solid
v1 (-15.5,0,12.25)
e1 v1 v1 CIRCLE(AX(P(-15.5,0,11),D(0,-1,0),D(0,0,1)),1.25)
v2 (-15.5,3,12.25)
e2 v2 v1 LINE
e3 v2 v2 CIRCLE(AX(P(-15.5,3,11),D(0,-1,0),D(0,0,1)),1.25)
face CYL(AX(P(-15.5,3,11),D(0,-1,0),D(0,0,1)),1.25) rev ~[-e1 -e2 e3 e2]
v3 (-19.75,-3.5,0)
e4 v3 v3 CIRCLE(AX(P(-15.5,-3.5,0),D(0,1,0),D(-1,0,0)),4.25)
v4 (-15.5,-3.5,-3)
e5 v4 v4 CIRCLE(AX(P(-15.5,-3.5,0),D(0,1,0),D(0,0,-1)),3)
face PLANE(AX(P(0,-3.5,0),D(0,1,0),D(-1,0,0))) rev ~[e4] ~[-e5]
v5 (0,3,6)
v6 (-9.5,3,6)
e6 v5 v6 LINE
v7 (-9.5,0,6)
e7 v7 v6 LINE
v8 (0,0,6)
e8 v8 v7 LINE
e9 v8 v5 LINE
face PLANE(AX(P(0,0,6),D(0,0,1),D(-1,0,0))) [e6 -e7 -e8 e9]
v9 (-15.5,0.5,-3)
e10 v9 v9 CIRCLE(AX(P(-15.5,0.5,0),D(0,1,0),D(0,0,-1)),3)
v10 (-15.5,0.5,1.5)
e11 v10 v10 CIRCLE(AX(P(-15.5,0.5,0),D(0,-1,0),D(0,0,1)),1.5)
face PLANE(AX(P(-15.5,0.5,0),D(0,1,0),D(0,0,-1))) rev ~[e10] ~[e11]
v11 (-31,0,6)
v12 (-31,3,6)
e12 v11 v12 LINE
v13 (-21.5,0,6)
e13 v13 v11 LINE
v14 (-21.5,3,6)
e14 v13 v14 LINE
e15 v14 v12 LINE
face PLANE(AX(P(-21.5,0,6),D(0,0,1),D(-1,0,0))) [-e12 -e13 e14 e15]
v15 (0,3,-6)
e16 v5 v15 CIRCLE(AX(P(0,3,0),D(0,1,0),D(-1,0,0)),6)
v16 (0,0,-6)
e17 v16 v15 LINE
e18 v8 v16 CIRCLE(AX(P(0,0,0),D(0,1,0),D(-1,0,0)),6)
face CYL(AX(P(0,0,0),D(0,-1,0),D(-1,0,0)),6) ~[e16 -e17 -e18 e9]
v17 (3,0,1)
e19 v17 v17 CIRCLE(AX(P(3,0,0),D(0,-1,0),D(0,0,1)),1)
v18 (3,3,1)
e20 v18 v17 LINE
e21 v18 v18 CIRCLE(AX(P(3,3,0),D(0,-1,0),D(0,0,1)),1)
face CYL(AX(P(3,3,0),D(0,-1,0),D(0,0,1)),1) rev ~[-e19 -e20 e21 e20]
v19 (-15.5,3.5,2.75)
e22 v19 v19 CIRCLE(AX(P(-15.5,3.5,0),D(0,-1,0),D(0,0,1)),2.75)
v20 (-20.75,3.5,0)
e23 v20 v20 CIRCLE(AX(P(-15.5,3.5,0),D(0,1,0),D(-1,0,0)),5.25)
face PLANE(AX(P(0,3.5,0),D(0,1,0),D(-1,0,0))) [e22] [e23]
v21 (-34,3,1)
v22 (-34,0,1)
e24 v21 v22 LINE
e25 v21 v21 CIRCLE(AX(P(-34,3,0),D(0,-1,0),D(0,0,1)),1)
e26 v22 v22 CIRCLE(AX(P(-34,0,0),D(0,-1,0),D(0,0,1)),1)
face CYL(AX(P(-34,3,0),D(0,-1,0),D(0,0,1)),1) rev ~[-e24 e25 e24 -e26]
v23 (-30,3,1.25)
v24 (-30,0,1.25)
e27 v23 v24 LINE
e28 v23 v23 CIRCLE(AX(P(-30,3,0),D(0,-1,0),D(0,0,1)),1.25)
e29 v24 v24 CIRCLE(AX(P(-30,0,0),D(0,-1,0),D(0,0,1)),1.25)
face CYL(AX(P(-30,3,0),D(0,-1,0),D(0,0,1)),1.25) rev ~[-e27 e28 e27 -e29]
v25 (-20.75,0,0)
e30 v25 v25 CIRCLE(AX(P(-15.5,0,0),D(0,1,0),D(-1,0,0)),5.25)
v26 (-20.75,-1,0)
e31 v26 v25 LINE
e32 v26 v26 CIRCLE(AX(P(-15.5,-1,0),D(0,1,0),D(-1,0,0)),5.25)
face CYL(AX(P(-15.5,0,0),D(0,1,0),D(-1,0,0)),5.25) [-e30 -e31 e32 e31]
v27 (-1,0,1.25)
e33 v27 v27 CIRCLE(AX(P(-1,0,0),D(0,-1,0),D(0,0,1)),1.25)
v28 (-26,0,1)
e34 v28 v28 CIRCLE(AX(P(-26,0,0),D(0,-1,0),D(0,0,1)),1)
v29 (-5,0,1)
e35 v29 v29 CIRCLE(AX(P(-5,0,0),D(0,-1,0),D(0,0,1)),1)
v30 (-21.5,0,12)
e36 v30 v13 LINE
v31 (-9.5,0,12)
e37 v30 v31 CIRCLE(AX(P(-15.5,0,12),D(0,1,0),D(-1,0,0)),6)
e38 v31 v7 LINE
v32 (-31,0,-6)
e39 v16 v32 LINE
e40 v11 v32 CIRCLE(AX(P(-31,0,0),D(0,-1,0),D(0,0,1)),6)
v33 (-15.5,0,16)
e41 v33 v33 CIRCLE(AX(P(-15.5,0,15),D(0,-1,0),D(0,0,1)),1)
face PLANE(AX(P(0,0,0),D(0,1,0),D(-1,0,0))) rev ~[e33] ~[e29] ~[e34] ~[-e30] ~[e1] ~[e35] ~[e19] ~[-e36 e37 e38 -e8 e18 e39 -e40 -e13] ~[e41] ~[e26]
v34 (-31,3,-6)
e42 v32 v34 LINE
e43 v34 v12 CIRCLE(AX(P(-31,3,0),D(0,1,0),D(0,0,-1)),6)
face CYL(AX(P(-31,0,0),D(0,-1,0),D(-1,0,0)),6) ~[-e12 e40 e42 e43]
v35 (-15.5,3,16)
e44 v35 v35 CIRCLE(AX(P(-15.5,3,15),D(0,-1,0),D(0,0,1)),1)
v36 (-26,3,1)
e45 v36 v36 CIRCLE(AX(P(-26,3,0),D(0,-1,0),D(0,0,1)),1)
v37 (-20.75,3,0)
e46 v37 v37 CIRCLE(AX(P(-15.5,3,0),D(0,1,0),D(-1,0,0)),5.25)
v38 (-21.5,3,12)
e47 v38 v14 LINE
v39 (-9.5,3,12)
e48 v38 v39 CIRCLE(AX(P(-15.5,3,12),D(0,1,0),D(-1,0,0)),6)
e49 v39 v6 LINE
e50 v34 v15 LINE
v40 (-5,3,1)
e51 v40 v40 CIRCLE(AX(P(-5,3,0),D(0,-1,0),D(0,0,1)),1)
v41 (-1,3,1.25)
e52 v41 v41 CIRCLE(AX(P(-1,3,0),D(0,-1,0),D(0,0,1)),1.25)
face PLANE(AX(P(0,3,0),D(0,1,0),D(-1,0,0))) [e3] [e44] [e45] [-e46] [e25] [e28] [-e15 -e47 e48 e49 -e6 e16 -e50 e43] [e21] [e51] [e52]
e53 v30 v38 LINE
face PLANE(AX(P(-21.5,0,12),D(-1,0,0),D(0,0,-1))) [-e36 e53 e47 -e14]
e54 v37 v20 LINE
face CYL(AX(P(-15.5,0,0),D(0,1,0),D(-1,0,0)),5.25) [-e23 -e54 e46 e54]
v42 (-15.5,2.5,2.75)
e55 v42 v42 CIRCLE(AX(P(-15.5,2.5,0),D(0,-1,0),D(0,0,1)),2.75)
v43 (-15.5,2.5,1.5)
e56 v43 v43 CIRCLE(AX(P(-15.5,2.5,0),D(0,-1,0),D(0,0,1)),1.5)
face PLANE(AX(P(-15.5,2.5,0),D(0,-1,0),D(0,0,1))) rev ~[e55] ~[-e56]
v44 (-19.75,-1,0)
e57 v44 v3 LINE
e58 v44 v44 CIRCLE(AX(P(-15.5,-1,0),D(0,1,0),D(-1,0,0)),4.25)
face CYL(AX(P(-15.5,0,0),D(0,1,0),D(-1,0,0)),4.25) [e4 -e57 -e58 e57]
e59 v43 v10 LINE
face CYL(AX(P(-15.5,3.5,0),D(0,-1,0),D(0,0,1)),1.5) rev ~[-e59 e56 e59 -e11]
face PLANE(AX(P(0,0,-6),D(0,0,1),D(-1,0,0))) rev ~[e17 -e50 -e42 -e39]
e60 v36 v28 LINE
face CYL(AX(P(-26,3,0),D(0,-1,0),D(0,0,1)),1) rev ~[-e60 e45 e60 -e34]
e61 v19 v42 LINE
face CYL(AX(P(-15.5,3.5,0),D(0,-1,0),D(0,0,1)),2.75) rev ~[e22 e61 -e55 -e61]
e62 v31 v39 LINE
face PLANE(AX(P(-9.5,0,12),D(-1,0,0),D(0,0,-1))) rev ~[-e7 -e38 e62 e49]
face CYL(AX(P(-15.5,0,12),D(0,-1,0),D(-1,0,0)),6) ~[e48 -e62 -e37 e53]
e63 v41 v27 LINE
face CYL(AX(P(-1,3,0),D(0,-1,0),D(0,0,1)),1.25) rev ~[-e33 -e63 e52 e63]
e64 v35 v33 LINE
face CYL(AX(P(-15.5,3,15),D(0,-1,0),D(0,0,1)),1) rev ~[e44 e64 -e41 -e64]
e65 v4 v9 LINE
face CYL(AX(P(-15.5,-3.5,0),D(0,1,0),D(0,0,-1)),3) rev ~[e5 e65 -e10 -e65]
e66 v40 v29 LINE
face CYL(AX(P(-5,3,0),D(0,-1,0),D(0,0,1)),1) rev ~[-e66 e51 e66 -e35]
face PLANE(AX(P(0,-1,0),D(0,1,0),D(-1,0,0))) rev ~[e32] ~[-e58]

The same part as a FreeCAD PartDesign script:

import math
import FreeCAD as App
import Part
import Sketcher

V = App.Vector
Q = App.Units.Quantity

doc = App.newDocument("Part")
body = doc.addObject("PartDesign::Body", "Body")

sketch1 = body.newObject("Sketcher::SketchObject", "Sketch")
sketch1.AttachmentSupport = (doc.getObject("XZ_Plane"), [""])
sketch1.MapMode = "FlatFace"
sketch1.addGeometry(Part.ArcOfCircle(Part.Circle(V(0, 0, 0), V(0, 0, 1), 6), math.radians(-90), math.radians(90)), False)
sketch1.addGeometry(Part.LineSegment(V(0, -6, 0), V(-31, -6, 0)), False)
sketch1.addGeometry(Part.ArcOfCircle(Part.Circle(V(-31, 0, 0), V(0, 0, 1), 6), math.radians(90), math.radians(270)), False)
sketch1.addGeometry(Part.LineSegment(V(-31, 6, 0), V(-22, 6, 0)), False)
sketch1.addGeometry(Part.LineSegment(V(-22, 6, 0), V(-22, 12, 0)), False)
sketch1.addGeometry(Part.ArcOfCircle(Part.Circle(V(-16, 12, 0), V(0, 0, 1), 6), math.radians(0), math.radians(180)), False)
sketch1.addGeometry(Part.LineSegment(V(-10, 12, 0), V(-10, 6, 0)), False)
sketch1.addGeometry(Part.LineSegment(V(-10, 6, 0), V(0, 6, 0)), False)
sketch1.addConstraint(Sketcher.Constraint("Tangent", 0, 1, 1, 1))
sketch1.addConstraint(Sketcher.Constraint("Tangent", 1, 2, 2, 2))
sketch1.addConstraint(Sketcher.Constraint("Tangent", 2, 1, 3, 1))
sketch1.addConstraint(Sketcher.Constraint("Coincident", 3, 2, 4, 1))
sketch1.addConstraint(Sketcher.Constraint("Tangent", 4, 2, 5, 2))
sketch1.addConstraint(Sketcher.Constraint("Tangent", 5, 1, 6, 1))
sketch1.addConstraint(Sketcher.Constraint("Coincident", 6, 2, 7, 1))
sketch1.addConstraint(Sketcher.Constraint("Tangent", 7, 2, 0, 2))
sketch1.addConstraint(Sketcher.Constraint("Horizontal", 1))
sketch1.addConstraint(Sketcher.Constraint("Horizontal", 3))
sketch1.addConstraint(Sketcher.Constraint("Vertical", 4))
sketch1.addConstraint(Sketcher.Constraint("Vertical", 6))
sketch1.addConstraint(Sketcher.Constraint("Horizontal", 7))
sketch1.addConstraint(Sketcher.Constraint("Coincident", 0, 3, -1, 1))
sketch1.addConstraint(Sketcher.Constraint("Equal", 0, 2))
sketch1.addConstraint(Sketcher.Constraint("Equal", 2, 5))
sketch1.addConstraint(Sketcher.Constraint("Equal", 3, 7))
sketch1.addConstraint(Sketcher.Constraint("Radius", 0, Q("6 mm")))
sketch1.addConstraint(Sketcher.Constraint("DistanceY", -1, 1, 5, 3, Q("12 mm")))
sketch1.addConstraint(Sketcher.Constraint("DistanceX", 5, 3, -1, 1, Q("15.5 mm")))
pad1 = body.newObject("PartDesign::Pad", "Pad")
pad1.Profile = sketch1
pad1.Length = 3
pad1.Reversed = True

sketch2 = body.newObject("Sketcher::SketchObject", "Sketch001")
sketch2.AttachmentSupport = (doc.getObject("XZ_Plane"), [""])
sketch2.MapMode = "FlatFace"
sketch2.addGeometry(Part.Circle(V(-16, 0, 0), V(0, 0, 1), 5), False)
sketch2.addConstraint(Sketcher.Constraint("PointOnObject", 0, 3, -1))
sketch2.addConstraint(Sketcher.Constraint("Diameter", 0, Q("10.5 mm")))
sketch2.addConstraint(Sketcher.Constraint("DistanceX", 0, 3, -1, 1, Q("15.5 mm")))
pad2 = body.newObject("PartDesign::Pad", "Pad001")
pad2.Profile = sketch2
pad2.Type = "TwoLengths"
pad2.Length = 3.5
pad2.Length2 = 1
pad2.Reversed = True

sketch3 = body.newObject("Sketcher::SketchObject", "Sketch002")
sketch3.AttachmentSupport = (doc.getObject("XZ_Plane"), [""])
sketch3.MapMode = "FlatFace"
sketch3.addGeometry(Part.Circle(V(-15.5, 0, 0), V(0, 0, 1), 4.2), False)
sketch3.addConstraint(Sketcher.Constraint("PointOnObject", 0, 3, -1))
sketch3.addConstraint(Sketcher.Constraint("Diameter", 0, Q("8.5 mm")))
sketch3.addConstraint(Sketcher.Constraint("DistanceX", 0, 3, -1, 1, Q("15.5 mm")))
pad3 = body.newObject("PartDesign::Pad", "Pad002")
pad3.Profile = sketch3
pad3.Length = 3.5

sketch4 = body.newObject("Sketcher::SketchObject", "Sketch003")
sketch4.AttachmentSupport = (doc.getObject("XZ_Plane"), [""])
sketch4.MapMode = "FlatFace"
sketch4.AttachmentOffset = App.Placement(V(0, 0, -3), App.Rotation())
sketch4.addGeometry(Part.Circle(V(-26, 0, 0), V(0, 0, 1), 1), False)
sketch4.addGeometry(Part.Circle(V(-34, 0, 0), V(0, 0, 1), 1), False)
sketch4.addGeometry(Part.Circle(V(-15.5, 15, 0), V(0, 0, 1), 1), False)
sketch4.addGeometry(Part.Circle(V(3, 0, 0), V(0, 0, 1), 1), False)
sketch4.addGeometry(Part.Circle(V(-5, 0, 0), V(0, 0, 1), 1), False)
sketch4.addConstraint(Sketcher.Constraint("Equal", 0, 1))
sketch4.addConstraint(Sketcher.Constraint("Equal", 1, 2))
sketch4.addConstraint(Sketcher.Constraint("Equal", 2, 3))
sketch4.addConstraint(Sketcher.Constraint("Equal", 3, 4))
sketch4.addConstraint(Sketcher.Constraint("PointOnObject", 0, 3, -1))
sketch4.addConstraint(Sketcher.Constraint("PointOnObject", 1, 3, -1))
sketch4.addConstraint(Sketcher.Constraint("PointOnObject", 3, 3, -1))
sketch4.addConstraint(Sketcher.Constraint("PointOnObject", 4, 3, -1))
sketch4.addConstraint(Sketcher.Constraint("Diameter", 0, Q("2 mm")))
sketch4.addConstraint(Sketcher.Constraint("DistanceX", 0, 3, -1, 1, Q("26 mm")))
sketch4.addConstraint(Sketcher.Constraint("DistanceX", 1, 3, -1, 1, Q("34 mm")))
sketch4.addConstraint(Sketcher.Constraint("DistanceY", -1, 1, 2, 3, Q("15 mm")))
sketch4.addConstraint(Sketcher.Constraint("DistanceX", -1, 1, 3, 3, Q("3 mm")))
sketch4.addConstraint(Sketcher.Constraint("DistanceX", 4, 3, -1, 1, Q("5 mm")))
sketch4.addConstraint(Sketcher.Constraint("DistanceX", 2, 3, -1, 1, Q("15.5 mm")))
doc.recompute()
hole = body.newObject("PartDesign::Hole", "Hole")
hole.Profile = sketch4
hole.ThreadType = "None"
hole.Diameter = 2
hole.DepthType = "ThroughAll"
hole.Reversed = True

sketch5 = body.newObject("Sketcher::SketchObject", "Sketch004")
sketch5.AttachmentSupport = (doc.getObject("XZ_Plane"), [""])
sketch5.MapMode = "FlatFace"
sketch5.AttachmentOffset = App.Placement(V(0, 0, -3), App.Rotation())
sketch5.addGeometry(Part.Circle(V(-30, 0, 0), V(0, 0, 1), 1.2), False)
sketch5.addGeometry(Part.Circle(V(-15.5, 11, 0), V(0, 0, 1), 1.2), False)
sketch5.addGeometry(Part.Circle(V(-1, 0, 0), V(0, 0, 1), 1.2), False)
sketch5.addConstraint(Sketcher.Constraint("Equal", 0, 1))
sketch5.addConstraint(Sketcher.Constraint("Equal", 1, 2))
sketch5.addConstraint(Sketcher.Constraint("PointOnObject", 0, 3, -1))
sketch5.addConstraint(Sketcher.Constraint("PointOnObject", 2, 3, -1))
sketch5.addConstraint(Sketcher.Constraint("Diameter", 0, Q("2.5 mm")))
sketch5.addConstraint(Sketcher.Constraint("DistanceX", 0, 3, -1, 1, Q("30 mm")))
sketch5.addConstraint(Sketcher.Constraint("DistanceY", -1, 1, 1, 3, Q("11 mm")))
sketch5.addConstraint(Sketcher.Constraint("DistanceX", 2, 3, -1, 1, Q("1 mm")))
sketch5.addConstraint(Sketcher.Constraint("DistanceX", 1, 3, -1, 1, Q("15.5 mm")))
doc.recompute()
hole2 = body.newObject("PartDesign::Hole", "Hole001")
hole2.Profile = sketch5
hole2.ThreadType = "None"
hole2.Diameter = 2.5
hole2.DepthType = "ThroughAll"
hole2.Reversed = True

sketch6 = body.newObject("Sketcher::SketchObject", "Sketch005")
sketch6.AttachmentSupport = (doc.getObject("XZ_Plane"), [""])
sketch6.MapMode = "FlatFace"
sketch6.AttachmentOffset = App.Placement(V(0, 0, -3.5), App.Rotation())
sketch6.addGeometry(Part.Circle(V(-15.5, 0, 0), V(0, 0, 1), 2.8), False)
sketch6.addConstraint(Sketcher.Constraint("PointOnObject", 0, 3, -1))
sketch6.addConstraint(Sketcher.Constraint("Diameter", 0, Q("5.5 mm")))
sketch6.addConstraint(Sketcher.Constraint("DistanceX", 0, 3, -1, 1, Q("15.5 mm")))
doc.recompute()
hole3 = body.newObject("PartDesign::Hole", "Hole002")
hole3.Profile = sketch6
hole3.ThreadType = "None"
hole3.Diameter = 5.5
hole3.DepthType = "Dimension"
hole3.Depth = 1
hole3.DrillPoint = "Flat"
hole3.Reversed = True

sketch7 = body.newObject("Sketcher::SketchObject", "Sketch006")
sketch7.AttachmentSupport = (doc.getObject("XZ_Plane"), [""])
sketch7.MapMode = "FlatFace"
sketch7.AttachmentOffset = App.Placement(V(0, 0, -3.5), App.Rotation())
sketch7.addGeometry(Part.Circle(V(-15.5, 0, 0), V(0, 0, 1), 1.5), False)
sketch7.addConstraint(Sketcher.Constraint("PointOnObject", 0, 3, -1))
sketch7.addConstraint(Sketcher.Constraint("Diameter", 0, Q("3 mm")))
sketch7.addConstraint(Sketcher.Constraint("DistanceX", 0, 3, -1, 1, Q("15.5 mm")))
doc.recompute()
hole4 = body.newObject("PartDesign::Hole", "Hole003")
hole4.Profile = sketch7
hole4.ThreadType = "None"
hole4.Diameter = 3
hole4.DepthType = "ThroughAll"
hole4.Reversed = True

sketch8 = body.newObject("Sketcher::SketchObject", "Sketch007")
sketch8.AttachmentSupport = (doc.getObject("XZ_Plane"), [""])
sketch8.MapMode = "FlatFace"
sketch8.AttachmentOffset = App.Placement(V(0, 0, 3.5), App.Rotation())
sketch8.addGeometry(Part.Circle(V(-15.5, 0, 0), V(0, 0, 1), 3), False)
sketch8.addConstraint(Sketcher.Constraint("PointOnObject", 0, 3, -1))
sketch8.addConstraint(Sketcher.Constraint("Diameter", 0, Q("6 mm")))
sketch8.addConstraint(Sketcher.Constraint("DistanceX", 0, 3, -1, 1, Q("15.5 mm")))
doc.recompute()
hole5 = body.newObject("PartDesign::Hole", "Hole004")
hole5.Profile = sketch8
hole5.ThreadType = "None"
hole5.Diameter = 6
hole5.DepthType = "Dimension"
hole5.Depth = 4
hole5.DrillPoint = "Flat"

doc.recompute()
